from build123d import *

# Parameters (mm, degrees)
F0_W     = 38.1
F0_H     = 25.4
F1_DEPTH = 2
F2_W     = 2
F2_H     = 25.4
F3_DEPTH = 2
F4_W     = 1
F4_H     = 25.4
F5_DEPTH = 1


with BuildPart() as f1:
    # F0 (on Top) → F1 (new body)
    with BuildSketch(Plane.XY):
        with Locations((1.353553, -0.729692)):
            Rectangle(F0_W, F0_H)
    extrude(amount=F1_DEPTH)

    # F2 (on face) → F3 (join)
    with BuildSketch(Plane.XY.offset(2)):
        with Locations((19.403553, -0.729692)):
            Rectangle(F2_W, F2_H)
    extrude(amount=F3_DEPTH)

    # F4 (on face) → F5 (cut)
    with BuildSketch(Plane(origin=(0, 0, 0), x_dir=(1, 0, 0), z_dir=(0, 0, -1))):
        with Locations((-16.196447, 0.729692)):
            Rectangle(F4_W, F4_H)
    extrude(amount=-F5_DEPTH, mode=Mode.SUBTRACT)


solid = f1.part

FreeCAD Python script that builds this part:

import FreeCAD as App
import Part
import Sketcher
Q = App.Units.Quantity

doc = App.newDocument("Part")
body = doc.addObject("PartDesign::Body", "Body")

# Sketch on XY plane
sketch1 = body.newObject("Sketcher::SketchObject", "Sketch")
sketch1.AttachmentSupport = (doc.getObject("XY_Plane"), [""])
sketch1.MapMode = "FlatFace"
sketch1.addGeometry(Part.LineSegment(App.Vector(-18, 12, 0), App.Vector(-18, -13, 0)), False)
sketch1.addGeometry(Part.LineSegment(App.Vector(-18, -13, 0), App.Vector(20, -13, 0)), False)
sketch1.addGeometry(Part.LineSegment(App.Vector(20, -13, 0), App.Vector(20, 12, 0)), False)
sketch1.addGeometry(Part.LineSegment(App.Vector(20, 12, 0), App.Vector(-18, 12, 0)), False)
sketch1.addConstraint(Sketcher.Constraint("Coincident", 0, 2, 1, 1))
sketch1.addConstraint(Sketcher.Constraint("Coincident", 1, 2, 2, 1))
sketch1.addConstraint(Sketcher.Constraint("Coincident", 2, 2, 3, 1))
sketch1.addConstraint(Sketcher.Constraint("Coincident", 3, 2, 0, 1))
sketch1.addConstraint(Sketcher.Constraint("Vertical", 0))
sketch1.addConstraint(Sketcher.Constraint("Horizontal", 1))
sketch1.addConstraint(Sketcher.Constraint("Vertical", 2))
sketch1.addConstraint(Sketcher.Constraint("Horizontal", 3))
sketch1.addConstraint(Sketcher.Constraint("DistanceX", 1, 1, 1, 2, Q("38.1 mm")))
sketch1.addConstraint(Sketcher.Constraint("DistanceY", 0, 2, 0, 1, Q("25.4 mm")))
sketch1.addConstraint(Sketcher.Constraint("DistanceY", 0, 2, -1, 1, Q("13.429692 mm")))
sketch1.addConstraint(Sketcher.Constraint("DistanceX", 0, 2, -1, 1, Q("17.696447 mm")))
pad1 = body.newObject("PartDesign::Pad", "Pad")
pad1.Profile = sketch1
pad1.Length = 2

# Sketch on XY plane
sketch2 = body.newObject("Sketcher::SketchObject", "Sketch001")
sketch2.AttachmentSupport = (doc.getObject("XY_Plane"), [""])
sketch2.MapMode = "FlatFace"
sketch2.AttachmentOffset = App.Placement(App.Vector(0, 0, 2), App.Rotation())
sketch2.addGeometry(Part.LineSegment(App.Vector(18.4, 12, 0), App.Vector(18.4, -13.4, 0)), False)
sketch2.addGeometry(Part.LineSegment(App.Vector(18.4, -13.4, 0), App.Vector(20.4, -13.4, 0)), False)
sketch2.addGeometry(Part.LineSegment(App.Vector(20.4, -13.4, 0), App.Vector(20.4, 12, 0)), False)
sketch2.addGeometry(Part.LineSegment(App.Vector(20.4, 12, 0), App.Vector(18.4, 12, 0)), False)
sketch2.addConstraint(Sketcher.Constraint("Coincident", 0, 2, 1, 1))
sketch2.addConstraint(Sketcher.Constraint("Coincident", 1, 2, 2, 1))
sketch2.addConstraint(Sketcher.Constraint("Coincident", 2, 2, 3, 1))
sketch2.addConstraint(Sketcher.Constraint("Coincident", 3, 2, 0, 1))
sketch2.addConstraint(Sketcher.Constraint("Vertical", 0))
sketch2.addConstraint(Sketcher.Constraint("Horizontal", 1))
sketch2.addConstraint(Sketcher.Constraint("Vertical", 2))
sketch2.addConstraint(Sketcher.Constraint("Horizontal", 3))
sketch2.addConstraint(Sketcher.Constraint("DistanceX", 1, 1, 1, 2, Q("2 mm")))
sketch2.addConstraint(Sketcher.Constraint("DistanceY", 0, 2, 0, 1, Q("25.4 mm")))
sketch2.addConstraint(Sketcher.Constraint("DistanceY", 0, 2, -1, 1, Q("13.429692 mm")))
sketch2.addConstraint(Sketcher.Constraint("DistanceX", -1, 1, 0, 2, Q("18.403553 mm")))
pad2 = body.newObject("PartDesign::Pad", "Pad001")
pad2.Profile = sketch2
pad2.Length = 2

# Sketch on XY plane
sketch3 = body.newObject("Sketcher::SketchObject", "Sketch002")
sketch3.AttachmentSupport = (doc.getObject("XY_Plane"), [""])
sketch3.MapMode = "FlatFace"
sketch3.addGeometry(Part.LineSegment(App.Vector(-16.7, -13.4, 0), App.Vector(-16.7, 12, 0)), False)
sketch3.addGeometry(Part.LineSegment(App.Vector(-16.7, 12, 0), App.Vector(-15.7, 12, 0)), False)
sketch3.addGeometry(Part.LineSegment(App.Vector(-15.7, 12, 0), App.Vector(-15.7, -13.4, 0)), False)
sketch3.addGeometry(Part.LineSegment(App.Vector(-15.7, -13.4, 0), App.Vector(-16.7, -13.4, 0)), False)
sketch3.addConstraint(Sketcher.Constraint("Coincident", 0, 2, 1, 1))
sketch3.addConstraint(Sketcher.Constraint("Coincident", 1, 2, 2, 1))
sketch3.addConstraint(Sketcher.Constraint("Coincident", 2, 2, 3, 1))
sketch3.addConstraint(Sketcher.Constraint("Coincident", 3, 2, 0, 1))
sketch3.addConstraint(Sketcher.Constraint("Vertical", 0))
sketch3.addConstraint(Sketcher.Constraint("Horizontal", 1))
sketch3.addConstraint(Sketcher.Constraint("Vertical", 2))
sketch3.addConstraint(Sketcher.Constraint("Horizontal", 3))
sketch3.addConstraint(Sketcher.Constraint("DistanceX", 1, 1, 1, 2, Q("1 mm")))
sketch3.addConstraint(Sketcher.Constraint("DistanceY", 0, 1, 0, 2, Q("25.4 mm")))
sketch3.addConstraint(Sketcher.Constraint("DistanceY", 2, 2, -1, 1, Q("13.429692 mm")))
sketch3.addConstraint(Sketcher.Constraint("DistanceX", 0, 2, -1, 1, Q("16.696447 mm")))
pocket1 = body.newObject("PartDesign::Pocket", "Pocket")
pocket1.Profile = sketch3
pocket1.Length = 1
pocket1.Reversed = True

doc.recompute()
